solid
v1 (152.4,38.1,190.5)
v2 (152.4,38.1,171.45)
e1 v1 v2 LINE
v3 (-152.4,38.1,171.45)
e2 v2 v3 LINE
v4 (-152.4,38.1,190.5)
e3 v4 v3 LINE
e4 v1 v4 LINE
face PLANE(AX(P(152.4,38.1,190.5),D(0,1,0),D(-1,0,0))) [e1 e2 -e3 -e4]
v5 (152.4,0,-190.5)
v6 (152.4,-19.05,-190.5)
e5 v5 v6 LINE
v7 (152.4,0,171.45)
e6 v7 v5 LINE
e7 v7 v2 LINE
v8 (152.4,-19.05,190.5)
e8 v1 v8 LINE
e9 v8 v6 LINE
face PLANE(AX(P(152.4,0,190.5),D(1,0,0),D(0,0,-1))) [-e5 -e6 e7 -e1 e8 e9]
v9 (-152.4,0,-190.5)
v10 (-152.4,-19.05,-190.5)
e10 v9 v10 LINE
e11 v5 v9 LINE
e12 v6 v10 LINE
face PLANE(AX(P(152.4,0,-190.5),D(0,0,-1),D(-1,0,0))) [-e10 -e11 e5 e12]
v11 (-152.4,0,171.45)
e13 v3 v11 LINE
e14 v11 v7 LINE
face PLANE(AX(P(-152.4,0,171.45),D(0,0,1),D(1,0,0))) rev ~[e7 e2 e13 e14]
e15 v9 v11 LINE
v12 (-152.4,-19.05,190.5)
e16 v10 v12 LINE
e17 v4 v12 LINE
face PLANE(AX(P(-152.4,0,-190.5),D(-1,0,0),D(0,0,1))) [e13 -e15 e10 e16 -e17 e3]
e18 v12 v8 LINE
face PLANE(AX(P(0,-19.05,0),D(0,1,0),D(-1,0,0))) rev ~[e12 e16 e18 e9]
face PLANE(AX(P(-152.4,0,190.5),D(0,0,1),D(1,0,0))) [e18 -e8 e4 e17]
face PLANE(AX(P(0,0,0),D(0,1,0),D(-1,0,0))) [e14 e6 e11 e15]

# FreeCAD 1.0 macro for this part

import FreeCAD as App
import Part
import Sketcher

V = App.Vector
Q = App.Units.Quantity


def add_polygon(sketch, points):
    """Adds a closed chain of lines whose ends are joined by coincident constraints."""
    first, n = sketch.GeometryCount, len(points)
    for a, b in zip(points, points[1:] + points[:1]):
        sketch.addGeometry(Part.LineSegment(App.Vector(*a, 0), App.Vector(*b, 0)), False)
    for i in range(n):
        sketch.addConstraint(Sketcher.Constraint("Coincident", first + i, 2, first + (i + 1) % n, 1))

doc = App.newDocument("Part")
body = doc.addObject("PartDesign::Body", "Body")

sketch1 = body.newObject("Sketcher::SketchObject", "Sketch")
sketch1.AttachmentSupport = (doc.getObject("XZ_Plane"), [""])
sketch1.MapMode = "FlatFace"
add_polygon(sketch1, [(152, 190), (152, -190), (-152, -190), (-152, 190)])
sketch1.addConstraint([
    Sketcher.Constraint("Vertical", 0),
    Sketcher.Constraint("Horizontal", 1),
    Sketcher.Constraint("Vertical", 2),
    Sketcher.Constraint("Horizontal", 3),
    Sketcher.Constraint("Symmetric", 0, 2, 2, 2, -1, 1),
    Sketcher.Constraint("DistanceX", 1, 2, 1, 1, Q("12 in")),
    Sketcher.Constraint("DistanceY", 0, 2, 0, 1, Q("15 in")),
])
pad1 = body.newObject("PartDesign::Pad", "Pad")
pad1.Profile = sketch1
pad1.Length = Q("0.75 in")

sketch2 = body.newObject("Sketcher::SketchObject", "Sketch001")
sketch2.AttachmentSupport = (doc.getObject("XY_Plane"), [""])
sketch2.MapMode = "FlatFace"
sketch2.AttachmentOffset = App.Placement(V(0, 0, 7.5 * 25.4), App.Rotation())
add_polygon(sketch2, [(-152, 38), (-152, 0), (152, 0), (152, 38)])
sketch2.addConstraint([
    Sketcher.Constraint("Vertical", 0),
    Sketcher.Constraint("Horizontal", 1),
    Sketcher.Constraint("Vertical", 2),
    Sketcher.Constraint("Horizontal", 3),
    Sketcher.Constraint("Symmetric", 0, 2, 1, 2, -1, 1),
    Sketcher.Constraint("DistanceY", 0, 2, 0, 1, Q("1.5 in")),
    Sketcher.Constraint("DistanceX", 1, 1, 1, 2, Q("12 in")),
])
pad2 = body.newObject("PartDesign::Pad", "Pad001")
pad2.Profile = sketch2
pad2.Length = Q("0.75 in")
pad2.Reversed = True

doc.recompute()
